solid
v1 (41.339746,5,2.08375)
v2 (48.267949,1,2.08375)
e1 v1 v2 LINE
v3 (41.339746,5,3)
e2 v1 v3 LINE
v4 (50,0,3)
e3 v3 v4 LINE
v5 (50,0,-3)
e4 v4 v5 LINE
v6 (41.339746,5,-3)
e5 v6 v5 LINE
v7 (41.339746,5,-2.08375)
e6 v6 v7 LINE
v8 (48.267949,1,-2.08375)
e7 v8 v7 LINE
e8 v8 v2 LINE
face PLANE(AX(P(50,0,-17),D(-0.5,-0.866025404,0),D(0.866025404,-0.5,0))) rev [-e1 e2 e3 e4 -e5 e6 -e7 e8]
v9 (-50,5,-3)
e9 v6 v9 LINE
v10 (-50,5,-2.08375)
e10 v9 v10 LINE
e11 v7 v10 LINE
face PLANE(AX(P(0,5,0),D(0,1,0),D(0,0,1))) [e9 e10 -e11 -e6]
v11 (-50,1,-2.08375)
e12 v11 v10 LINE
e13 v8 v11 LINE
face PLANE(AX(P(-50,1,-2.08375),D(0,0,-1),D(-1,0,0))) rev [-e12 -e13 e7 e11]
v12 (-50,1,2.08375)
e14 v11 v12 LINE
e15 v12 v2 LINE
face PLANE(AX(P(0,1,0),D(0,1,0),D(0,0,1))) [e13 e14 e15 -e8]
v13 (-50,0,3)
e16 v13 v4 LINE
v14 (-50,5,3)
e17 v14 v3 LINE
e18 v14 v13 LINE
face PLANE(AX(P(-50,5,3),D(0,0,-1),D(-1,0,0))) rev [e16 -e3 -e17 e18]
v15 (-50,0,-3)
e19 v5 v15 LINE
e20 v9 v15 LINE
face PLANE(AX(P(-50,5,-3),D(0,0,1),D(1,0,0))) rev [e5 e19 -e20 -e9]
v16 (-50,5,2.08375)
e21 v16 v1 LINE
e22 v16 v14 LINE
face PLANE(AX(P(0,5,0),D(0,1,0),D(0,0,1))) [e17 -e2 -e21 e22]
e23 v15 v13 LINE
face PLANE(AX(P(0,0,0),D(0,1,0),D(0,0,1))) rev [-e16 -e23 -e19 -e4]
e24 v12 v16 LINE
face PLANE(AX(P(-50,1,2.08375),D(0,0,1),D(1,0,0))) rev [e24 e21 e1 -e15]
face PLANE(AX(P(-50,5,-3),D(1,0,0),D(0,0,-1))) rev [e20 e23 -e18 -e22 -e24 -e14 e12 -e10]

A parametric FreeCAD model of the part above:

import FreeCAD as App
import Part
import Sketcher
Q = App.Units.Quantity

doc = App.newDocument("Part")
body = doc.addObject("PartDesign::Body", "Body")

# Sketch on XZ plane
sketch1 = body.newObject("Sketcher::SketchObject", "Sketch")
sketch1.AttachmentSupport = (doc.getObject("XZ_Plane"), [""])
sketch1.MapMode = "FlatFace"
sketch1.addGeometry(Part.LineSegment(App.Vector(-50, -3, 0), App.Vector(-50, 3, 0)), False)
sketch1.addGeometry(Part.LineSegment(App.Vector(-50, 3, 0), App.Vector(50, 3, 0)), False)
sketch1.addGeometry(Part.LineSegment(App.Vector(50, 3, 0), App.Vector(50, -3, 0)), False)
sketch1.addGeometry(Part.LineSegment(App.Vector(50, -3, 0), App.Vector(-50, -3, 0)), False)
sketch1.addConstraint(Sketcher.Constraint("Coincident", 0, 2, 1, 1))
sketch1.addConstraint(Sketcher.Constraint("Coincident", 1, 2, 2, 1))
sketch1.addConstraint(Sketcher.Constraint("Coincident", 2, 2, 3, 1))
sketch1.addConstraint(Sketcher.Constraint("Coincident", 3, 2, 0, 1))
sketch1.addConstraint(Sketcher.Constraint("Vertical", 0))
sketch1.addConstraint(Sketcher.Constraint("Horizontal", 1))
sketch1.addConstraint(Sketcher.Constraint("Vertical", 2))
sketch1.addConstraint(Sketcher.Constraint("Horizontal", 3))
sketch1.addConstraint(Sketcher.Constraint("Symmetric", 0, 2, 2, 2, -1, 1))
sketch1.addConstraint(Sketcher.Constraint("DistanceX", 1, 1, 1, 2, 100.0))
sketch1.addConstraint(Sketcher.Constraint("DistanceY", 0, 1, 0, 2, 6.0))
pad1 = body.newObject("PartDesign::Pad", "Pad")
pad1.Profile = sketch1
pad1.Length = 5
pad1.Reversed = True

# Sketch on XZ plane
sketch2 = body.newObject("Sketcher::SketchObject", "Sketch001")
sketch2.AttachmentSupport = (doc.getObject("XZ_Plane"), [""])
sketch2.MapMode = "FlatFace"
sketch2.AttachmentOffset = App.Placement(App.Vector(0, 0, -5), App.Rotation())
sketch2.addGeometry(Part.LineSegment(App.Vector(-50, -2.08375, 0), App.Vector(-50, 2.08375, 0)), False)
sketch2.addGeometry(Part.LineSegment(App.Vector(-50, 2.08375, 0), App.Vector(50, 2.08375, 0)), False)
sketch2.addGeometry(Part.LineSegment(App.Vector(50, 2.08375, 0), App.Vector(50, -2.08375, 0)), False)
sketch2.addGeometry(Part.LineSegment(App.Vector(50, -2.08375, 0), App.Vector(-50, -2.08375, 0)), False)
sketch2.addConstraint(Sketcher.Constraint("Coincident", 0, 2, 1, 1))
sketch2.addConstraint(Sketcher.Constraint("Coincident", 1, 2, 2, 1))
sketch2.addConstraint(Sketcher.Constraint("Coincident", 2, 2, 3, 1))
sketch2.addConstraint(Sketcher.Constraint("Coincident", 3, 2, 0, 1))
sketch2.addConstraint(Sketcher.Constraint("Vertical", 0))
sketch2.addConstraint(Sketcher.Constraint("Horizontal", 1))
sketch2.addConstraint(Sketcher.Constraint("Vertical", 2))
sketch2.addConstraint(Sketcher.Constraint("Horizontal", 3))
sketch2.addConstraint(Sketcher.Constraint("Symmetric", 0, 2, 2, 2, -1, 1))
sketch2.addConstraint(Sketcher.Constraint("DistanceX", 1, 1, 1, 2, 100.0))
sketch2.addConstraint(Sketcher.Constraint("DistanceY", 0, 1, 0, 2, 4.1675))
pocket1 = body.newObject("PartDesign::Pocket", "Pocket")
pocket1.Profile = sketch2
pocket1.Length = 4
pocket1.Reversed = True

# Sketch on XY plane
sketch3 = body.newObject("Sketcher::SketchObject", "Sketch002")
sketch3.AttachmentSupport = (doc.getObject("XY_Plane"), [""])
sketch3.MapMode = "FlatFace"
sketch3.AttachmentOffset = App.Placement(App.Vector(0, 0, 3), App.Rotation())
sketch3.addGeometry(Part.LineSegment(App.Vector(41.339746, 5, 0), App.Vector(50, 0, 0)), False)
sketch3.addGeometry(Part.LineSegment(App.Vector(50, 0, 0), App.Vector(50, 5, 0)), False)
sketch3.addGeometry(Part.LineSegment(App.Vector(50, 5, 0), App.Vector(41.339746, 5, 0)), False)
sketch3.addConstraint(Sketcher.Constraint("Coincident", 0, 2, 1, 1))
sketch3.addConstraint(Sketcher.Constraint("Coincident", 1, 2, 2, 1))
sketch3.addConstraint(Sketcher.Constraint("Coincident", 2, 2, 0, 1))
sketch3.addConstraint(Sketcher.Constraint("Vertical", 1))
sketch3.addConstraint(Sketcher.Constraint("Horizontal", 2))
sketch3.addConstraint(Sketcher.Constraint("PointOnObject", 0, 2, -1))
sketch3.addConstraint(Sketcher.Constraint("DistanceY", 1, 1, 1, 2, 5.0))
sketch3.addConstraint(Sketcher.Constraint("Angle", 0, Q("-30 deg")))
sketch3.addConstraint(Sketcher.Constraint("DistanceX", -1, 1, 0, 2, 50.0))
pocket2 = body.newObject("PartDesign::Pocket", "Pocket001")
pocket2.Profile = sketch3
pocket2.Length = 20

doc.recompute()
